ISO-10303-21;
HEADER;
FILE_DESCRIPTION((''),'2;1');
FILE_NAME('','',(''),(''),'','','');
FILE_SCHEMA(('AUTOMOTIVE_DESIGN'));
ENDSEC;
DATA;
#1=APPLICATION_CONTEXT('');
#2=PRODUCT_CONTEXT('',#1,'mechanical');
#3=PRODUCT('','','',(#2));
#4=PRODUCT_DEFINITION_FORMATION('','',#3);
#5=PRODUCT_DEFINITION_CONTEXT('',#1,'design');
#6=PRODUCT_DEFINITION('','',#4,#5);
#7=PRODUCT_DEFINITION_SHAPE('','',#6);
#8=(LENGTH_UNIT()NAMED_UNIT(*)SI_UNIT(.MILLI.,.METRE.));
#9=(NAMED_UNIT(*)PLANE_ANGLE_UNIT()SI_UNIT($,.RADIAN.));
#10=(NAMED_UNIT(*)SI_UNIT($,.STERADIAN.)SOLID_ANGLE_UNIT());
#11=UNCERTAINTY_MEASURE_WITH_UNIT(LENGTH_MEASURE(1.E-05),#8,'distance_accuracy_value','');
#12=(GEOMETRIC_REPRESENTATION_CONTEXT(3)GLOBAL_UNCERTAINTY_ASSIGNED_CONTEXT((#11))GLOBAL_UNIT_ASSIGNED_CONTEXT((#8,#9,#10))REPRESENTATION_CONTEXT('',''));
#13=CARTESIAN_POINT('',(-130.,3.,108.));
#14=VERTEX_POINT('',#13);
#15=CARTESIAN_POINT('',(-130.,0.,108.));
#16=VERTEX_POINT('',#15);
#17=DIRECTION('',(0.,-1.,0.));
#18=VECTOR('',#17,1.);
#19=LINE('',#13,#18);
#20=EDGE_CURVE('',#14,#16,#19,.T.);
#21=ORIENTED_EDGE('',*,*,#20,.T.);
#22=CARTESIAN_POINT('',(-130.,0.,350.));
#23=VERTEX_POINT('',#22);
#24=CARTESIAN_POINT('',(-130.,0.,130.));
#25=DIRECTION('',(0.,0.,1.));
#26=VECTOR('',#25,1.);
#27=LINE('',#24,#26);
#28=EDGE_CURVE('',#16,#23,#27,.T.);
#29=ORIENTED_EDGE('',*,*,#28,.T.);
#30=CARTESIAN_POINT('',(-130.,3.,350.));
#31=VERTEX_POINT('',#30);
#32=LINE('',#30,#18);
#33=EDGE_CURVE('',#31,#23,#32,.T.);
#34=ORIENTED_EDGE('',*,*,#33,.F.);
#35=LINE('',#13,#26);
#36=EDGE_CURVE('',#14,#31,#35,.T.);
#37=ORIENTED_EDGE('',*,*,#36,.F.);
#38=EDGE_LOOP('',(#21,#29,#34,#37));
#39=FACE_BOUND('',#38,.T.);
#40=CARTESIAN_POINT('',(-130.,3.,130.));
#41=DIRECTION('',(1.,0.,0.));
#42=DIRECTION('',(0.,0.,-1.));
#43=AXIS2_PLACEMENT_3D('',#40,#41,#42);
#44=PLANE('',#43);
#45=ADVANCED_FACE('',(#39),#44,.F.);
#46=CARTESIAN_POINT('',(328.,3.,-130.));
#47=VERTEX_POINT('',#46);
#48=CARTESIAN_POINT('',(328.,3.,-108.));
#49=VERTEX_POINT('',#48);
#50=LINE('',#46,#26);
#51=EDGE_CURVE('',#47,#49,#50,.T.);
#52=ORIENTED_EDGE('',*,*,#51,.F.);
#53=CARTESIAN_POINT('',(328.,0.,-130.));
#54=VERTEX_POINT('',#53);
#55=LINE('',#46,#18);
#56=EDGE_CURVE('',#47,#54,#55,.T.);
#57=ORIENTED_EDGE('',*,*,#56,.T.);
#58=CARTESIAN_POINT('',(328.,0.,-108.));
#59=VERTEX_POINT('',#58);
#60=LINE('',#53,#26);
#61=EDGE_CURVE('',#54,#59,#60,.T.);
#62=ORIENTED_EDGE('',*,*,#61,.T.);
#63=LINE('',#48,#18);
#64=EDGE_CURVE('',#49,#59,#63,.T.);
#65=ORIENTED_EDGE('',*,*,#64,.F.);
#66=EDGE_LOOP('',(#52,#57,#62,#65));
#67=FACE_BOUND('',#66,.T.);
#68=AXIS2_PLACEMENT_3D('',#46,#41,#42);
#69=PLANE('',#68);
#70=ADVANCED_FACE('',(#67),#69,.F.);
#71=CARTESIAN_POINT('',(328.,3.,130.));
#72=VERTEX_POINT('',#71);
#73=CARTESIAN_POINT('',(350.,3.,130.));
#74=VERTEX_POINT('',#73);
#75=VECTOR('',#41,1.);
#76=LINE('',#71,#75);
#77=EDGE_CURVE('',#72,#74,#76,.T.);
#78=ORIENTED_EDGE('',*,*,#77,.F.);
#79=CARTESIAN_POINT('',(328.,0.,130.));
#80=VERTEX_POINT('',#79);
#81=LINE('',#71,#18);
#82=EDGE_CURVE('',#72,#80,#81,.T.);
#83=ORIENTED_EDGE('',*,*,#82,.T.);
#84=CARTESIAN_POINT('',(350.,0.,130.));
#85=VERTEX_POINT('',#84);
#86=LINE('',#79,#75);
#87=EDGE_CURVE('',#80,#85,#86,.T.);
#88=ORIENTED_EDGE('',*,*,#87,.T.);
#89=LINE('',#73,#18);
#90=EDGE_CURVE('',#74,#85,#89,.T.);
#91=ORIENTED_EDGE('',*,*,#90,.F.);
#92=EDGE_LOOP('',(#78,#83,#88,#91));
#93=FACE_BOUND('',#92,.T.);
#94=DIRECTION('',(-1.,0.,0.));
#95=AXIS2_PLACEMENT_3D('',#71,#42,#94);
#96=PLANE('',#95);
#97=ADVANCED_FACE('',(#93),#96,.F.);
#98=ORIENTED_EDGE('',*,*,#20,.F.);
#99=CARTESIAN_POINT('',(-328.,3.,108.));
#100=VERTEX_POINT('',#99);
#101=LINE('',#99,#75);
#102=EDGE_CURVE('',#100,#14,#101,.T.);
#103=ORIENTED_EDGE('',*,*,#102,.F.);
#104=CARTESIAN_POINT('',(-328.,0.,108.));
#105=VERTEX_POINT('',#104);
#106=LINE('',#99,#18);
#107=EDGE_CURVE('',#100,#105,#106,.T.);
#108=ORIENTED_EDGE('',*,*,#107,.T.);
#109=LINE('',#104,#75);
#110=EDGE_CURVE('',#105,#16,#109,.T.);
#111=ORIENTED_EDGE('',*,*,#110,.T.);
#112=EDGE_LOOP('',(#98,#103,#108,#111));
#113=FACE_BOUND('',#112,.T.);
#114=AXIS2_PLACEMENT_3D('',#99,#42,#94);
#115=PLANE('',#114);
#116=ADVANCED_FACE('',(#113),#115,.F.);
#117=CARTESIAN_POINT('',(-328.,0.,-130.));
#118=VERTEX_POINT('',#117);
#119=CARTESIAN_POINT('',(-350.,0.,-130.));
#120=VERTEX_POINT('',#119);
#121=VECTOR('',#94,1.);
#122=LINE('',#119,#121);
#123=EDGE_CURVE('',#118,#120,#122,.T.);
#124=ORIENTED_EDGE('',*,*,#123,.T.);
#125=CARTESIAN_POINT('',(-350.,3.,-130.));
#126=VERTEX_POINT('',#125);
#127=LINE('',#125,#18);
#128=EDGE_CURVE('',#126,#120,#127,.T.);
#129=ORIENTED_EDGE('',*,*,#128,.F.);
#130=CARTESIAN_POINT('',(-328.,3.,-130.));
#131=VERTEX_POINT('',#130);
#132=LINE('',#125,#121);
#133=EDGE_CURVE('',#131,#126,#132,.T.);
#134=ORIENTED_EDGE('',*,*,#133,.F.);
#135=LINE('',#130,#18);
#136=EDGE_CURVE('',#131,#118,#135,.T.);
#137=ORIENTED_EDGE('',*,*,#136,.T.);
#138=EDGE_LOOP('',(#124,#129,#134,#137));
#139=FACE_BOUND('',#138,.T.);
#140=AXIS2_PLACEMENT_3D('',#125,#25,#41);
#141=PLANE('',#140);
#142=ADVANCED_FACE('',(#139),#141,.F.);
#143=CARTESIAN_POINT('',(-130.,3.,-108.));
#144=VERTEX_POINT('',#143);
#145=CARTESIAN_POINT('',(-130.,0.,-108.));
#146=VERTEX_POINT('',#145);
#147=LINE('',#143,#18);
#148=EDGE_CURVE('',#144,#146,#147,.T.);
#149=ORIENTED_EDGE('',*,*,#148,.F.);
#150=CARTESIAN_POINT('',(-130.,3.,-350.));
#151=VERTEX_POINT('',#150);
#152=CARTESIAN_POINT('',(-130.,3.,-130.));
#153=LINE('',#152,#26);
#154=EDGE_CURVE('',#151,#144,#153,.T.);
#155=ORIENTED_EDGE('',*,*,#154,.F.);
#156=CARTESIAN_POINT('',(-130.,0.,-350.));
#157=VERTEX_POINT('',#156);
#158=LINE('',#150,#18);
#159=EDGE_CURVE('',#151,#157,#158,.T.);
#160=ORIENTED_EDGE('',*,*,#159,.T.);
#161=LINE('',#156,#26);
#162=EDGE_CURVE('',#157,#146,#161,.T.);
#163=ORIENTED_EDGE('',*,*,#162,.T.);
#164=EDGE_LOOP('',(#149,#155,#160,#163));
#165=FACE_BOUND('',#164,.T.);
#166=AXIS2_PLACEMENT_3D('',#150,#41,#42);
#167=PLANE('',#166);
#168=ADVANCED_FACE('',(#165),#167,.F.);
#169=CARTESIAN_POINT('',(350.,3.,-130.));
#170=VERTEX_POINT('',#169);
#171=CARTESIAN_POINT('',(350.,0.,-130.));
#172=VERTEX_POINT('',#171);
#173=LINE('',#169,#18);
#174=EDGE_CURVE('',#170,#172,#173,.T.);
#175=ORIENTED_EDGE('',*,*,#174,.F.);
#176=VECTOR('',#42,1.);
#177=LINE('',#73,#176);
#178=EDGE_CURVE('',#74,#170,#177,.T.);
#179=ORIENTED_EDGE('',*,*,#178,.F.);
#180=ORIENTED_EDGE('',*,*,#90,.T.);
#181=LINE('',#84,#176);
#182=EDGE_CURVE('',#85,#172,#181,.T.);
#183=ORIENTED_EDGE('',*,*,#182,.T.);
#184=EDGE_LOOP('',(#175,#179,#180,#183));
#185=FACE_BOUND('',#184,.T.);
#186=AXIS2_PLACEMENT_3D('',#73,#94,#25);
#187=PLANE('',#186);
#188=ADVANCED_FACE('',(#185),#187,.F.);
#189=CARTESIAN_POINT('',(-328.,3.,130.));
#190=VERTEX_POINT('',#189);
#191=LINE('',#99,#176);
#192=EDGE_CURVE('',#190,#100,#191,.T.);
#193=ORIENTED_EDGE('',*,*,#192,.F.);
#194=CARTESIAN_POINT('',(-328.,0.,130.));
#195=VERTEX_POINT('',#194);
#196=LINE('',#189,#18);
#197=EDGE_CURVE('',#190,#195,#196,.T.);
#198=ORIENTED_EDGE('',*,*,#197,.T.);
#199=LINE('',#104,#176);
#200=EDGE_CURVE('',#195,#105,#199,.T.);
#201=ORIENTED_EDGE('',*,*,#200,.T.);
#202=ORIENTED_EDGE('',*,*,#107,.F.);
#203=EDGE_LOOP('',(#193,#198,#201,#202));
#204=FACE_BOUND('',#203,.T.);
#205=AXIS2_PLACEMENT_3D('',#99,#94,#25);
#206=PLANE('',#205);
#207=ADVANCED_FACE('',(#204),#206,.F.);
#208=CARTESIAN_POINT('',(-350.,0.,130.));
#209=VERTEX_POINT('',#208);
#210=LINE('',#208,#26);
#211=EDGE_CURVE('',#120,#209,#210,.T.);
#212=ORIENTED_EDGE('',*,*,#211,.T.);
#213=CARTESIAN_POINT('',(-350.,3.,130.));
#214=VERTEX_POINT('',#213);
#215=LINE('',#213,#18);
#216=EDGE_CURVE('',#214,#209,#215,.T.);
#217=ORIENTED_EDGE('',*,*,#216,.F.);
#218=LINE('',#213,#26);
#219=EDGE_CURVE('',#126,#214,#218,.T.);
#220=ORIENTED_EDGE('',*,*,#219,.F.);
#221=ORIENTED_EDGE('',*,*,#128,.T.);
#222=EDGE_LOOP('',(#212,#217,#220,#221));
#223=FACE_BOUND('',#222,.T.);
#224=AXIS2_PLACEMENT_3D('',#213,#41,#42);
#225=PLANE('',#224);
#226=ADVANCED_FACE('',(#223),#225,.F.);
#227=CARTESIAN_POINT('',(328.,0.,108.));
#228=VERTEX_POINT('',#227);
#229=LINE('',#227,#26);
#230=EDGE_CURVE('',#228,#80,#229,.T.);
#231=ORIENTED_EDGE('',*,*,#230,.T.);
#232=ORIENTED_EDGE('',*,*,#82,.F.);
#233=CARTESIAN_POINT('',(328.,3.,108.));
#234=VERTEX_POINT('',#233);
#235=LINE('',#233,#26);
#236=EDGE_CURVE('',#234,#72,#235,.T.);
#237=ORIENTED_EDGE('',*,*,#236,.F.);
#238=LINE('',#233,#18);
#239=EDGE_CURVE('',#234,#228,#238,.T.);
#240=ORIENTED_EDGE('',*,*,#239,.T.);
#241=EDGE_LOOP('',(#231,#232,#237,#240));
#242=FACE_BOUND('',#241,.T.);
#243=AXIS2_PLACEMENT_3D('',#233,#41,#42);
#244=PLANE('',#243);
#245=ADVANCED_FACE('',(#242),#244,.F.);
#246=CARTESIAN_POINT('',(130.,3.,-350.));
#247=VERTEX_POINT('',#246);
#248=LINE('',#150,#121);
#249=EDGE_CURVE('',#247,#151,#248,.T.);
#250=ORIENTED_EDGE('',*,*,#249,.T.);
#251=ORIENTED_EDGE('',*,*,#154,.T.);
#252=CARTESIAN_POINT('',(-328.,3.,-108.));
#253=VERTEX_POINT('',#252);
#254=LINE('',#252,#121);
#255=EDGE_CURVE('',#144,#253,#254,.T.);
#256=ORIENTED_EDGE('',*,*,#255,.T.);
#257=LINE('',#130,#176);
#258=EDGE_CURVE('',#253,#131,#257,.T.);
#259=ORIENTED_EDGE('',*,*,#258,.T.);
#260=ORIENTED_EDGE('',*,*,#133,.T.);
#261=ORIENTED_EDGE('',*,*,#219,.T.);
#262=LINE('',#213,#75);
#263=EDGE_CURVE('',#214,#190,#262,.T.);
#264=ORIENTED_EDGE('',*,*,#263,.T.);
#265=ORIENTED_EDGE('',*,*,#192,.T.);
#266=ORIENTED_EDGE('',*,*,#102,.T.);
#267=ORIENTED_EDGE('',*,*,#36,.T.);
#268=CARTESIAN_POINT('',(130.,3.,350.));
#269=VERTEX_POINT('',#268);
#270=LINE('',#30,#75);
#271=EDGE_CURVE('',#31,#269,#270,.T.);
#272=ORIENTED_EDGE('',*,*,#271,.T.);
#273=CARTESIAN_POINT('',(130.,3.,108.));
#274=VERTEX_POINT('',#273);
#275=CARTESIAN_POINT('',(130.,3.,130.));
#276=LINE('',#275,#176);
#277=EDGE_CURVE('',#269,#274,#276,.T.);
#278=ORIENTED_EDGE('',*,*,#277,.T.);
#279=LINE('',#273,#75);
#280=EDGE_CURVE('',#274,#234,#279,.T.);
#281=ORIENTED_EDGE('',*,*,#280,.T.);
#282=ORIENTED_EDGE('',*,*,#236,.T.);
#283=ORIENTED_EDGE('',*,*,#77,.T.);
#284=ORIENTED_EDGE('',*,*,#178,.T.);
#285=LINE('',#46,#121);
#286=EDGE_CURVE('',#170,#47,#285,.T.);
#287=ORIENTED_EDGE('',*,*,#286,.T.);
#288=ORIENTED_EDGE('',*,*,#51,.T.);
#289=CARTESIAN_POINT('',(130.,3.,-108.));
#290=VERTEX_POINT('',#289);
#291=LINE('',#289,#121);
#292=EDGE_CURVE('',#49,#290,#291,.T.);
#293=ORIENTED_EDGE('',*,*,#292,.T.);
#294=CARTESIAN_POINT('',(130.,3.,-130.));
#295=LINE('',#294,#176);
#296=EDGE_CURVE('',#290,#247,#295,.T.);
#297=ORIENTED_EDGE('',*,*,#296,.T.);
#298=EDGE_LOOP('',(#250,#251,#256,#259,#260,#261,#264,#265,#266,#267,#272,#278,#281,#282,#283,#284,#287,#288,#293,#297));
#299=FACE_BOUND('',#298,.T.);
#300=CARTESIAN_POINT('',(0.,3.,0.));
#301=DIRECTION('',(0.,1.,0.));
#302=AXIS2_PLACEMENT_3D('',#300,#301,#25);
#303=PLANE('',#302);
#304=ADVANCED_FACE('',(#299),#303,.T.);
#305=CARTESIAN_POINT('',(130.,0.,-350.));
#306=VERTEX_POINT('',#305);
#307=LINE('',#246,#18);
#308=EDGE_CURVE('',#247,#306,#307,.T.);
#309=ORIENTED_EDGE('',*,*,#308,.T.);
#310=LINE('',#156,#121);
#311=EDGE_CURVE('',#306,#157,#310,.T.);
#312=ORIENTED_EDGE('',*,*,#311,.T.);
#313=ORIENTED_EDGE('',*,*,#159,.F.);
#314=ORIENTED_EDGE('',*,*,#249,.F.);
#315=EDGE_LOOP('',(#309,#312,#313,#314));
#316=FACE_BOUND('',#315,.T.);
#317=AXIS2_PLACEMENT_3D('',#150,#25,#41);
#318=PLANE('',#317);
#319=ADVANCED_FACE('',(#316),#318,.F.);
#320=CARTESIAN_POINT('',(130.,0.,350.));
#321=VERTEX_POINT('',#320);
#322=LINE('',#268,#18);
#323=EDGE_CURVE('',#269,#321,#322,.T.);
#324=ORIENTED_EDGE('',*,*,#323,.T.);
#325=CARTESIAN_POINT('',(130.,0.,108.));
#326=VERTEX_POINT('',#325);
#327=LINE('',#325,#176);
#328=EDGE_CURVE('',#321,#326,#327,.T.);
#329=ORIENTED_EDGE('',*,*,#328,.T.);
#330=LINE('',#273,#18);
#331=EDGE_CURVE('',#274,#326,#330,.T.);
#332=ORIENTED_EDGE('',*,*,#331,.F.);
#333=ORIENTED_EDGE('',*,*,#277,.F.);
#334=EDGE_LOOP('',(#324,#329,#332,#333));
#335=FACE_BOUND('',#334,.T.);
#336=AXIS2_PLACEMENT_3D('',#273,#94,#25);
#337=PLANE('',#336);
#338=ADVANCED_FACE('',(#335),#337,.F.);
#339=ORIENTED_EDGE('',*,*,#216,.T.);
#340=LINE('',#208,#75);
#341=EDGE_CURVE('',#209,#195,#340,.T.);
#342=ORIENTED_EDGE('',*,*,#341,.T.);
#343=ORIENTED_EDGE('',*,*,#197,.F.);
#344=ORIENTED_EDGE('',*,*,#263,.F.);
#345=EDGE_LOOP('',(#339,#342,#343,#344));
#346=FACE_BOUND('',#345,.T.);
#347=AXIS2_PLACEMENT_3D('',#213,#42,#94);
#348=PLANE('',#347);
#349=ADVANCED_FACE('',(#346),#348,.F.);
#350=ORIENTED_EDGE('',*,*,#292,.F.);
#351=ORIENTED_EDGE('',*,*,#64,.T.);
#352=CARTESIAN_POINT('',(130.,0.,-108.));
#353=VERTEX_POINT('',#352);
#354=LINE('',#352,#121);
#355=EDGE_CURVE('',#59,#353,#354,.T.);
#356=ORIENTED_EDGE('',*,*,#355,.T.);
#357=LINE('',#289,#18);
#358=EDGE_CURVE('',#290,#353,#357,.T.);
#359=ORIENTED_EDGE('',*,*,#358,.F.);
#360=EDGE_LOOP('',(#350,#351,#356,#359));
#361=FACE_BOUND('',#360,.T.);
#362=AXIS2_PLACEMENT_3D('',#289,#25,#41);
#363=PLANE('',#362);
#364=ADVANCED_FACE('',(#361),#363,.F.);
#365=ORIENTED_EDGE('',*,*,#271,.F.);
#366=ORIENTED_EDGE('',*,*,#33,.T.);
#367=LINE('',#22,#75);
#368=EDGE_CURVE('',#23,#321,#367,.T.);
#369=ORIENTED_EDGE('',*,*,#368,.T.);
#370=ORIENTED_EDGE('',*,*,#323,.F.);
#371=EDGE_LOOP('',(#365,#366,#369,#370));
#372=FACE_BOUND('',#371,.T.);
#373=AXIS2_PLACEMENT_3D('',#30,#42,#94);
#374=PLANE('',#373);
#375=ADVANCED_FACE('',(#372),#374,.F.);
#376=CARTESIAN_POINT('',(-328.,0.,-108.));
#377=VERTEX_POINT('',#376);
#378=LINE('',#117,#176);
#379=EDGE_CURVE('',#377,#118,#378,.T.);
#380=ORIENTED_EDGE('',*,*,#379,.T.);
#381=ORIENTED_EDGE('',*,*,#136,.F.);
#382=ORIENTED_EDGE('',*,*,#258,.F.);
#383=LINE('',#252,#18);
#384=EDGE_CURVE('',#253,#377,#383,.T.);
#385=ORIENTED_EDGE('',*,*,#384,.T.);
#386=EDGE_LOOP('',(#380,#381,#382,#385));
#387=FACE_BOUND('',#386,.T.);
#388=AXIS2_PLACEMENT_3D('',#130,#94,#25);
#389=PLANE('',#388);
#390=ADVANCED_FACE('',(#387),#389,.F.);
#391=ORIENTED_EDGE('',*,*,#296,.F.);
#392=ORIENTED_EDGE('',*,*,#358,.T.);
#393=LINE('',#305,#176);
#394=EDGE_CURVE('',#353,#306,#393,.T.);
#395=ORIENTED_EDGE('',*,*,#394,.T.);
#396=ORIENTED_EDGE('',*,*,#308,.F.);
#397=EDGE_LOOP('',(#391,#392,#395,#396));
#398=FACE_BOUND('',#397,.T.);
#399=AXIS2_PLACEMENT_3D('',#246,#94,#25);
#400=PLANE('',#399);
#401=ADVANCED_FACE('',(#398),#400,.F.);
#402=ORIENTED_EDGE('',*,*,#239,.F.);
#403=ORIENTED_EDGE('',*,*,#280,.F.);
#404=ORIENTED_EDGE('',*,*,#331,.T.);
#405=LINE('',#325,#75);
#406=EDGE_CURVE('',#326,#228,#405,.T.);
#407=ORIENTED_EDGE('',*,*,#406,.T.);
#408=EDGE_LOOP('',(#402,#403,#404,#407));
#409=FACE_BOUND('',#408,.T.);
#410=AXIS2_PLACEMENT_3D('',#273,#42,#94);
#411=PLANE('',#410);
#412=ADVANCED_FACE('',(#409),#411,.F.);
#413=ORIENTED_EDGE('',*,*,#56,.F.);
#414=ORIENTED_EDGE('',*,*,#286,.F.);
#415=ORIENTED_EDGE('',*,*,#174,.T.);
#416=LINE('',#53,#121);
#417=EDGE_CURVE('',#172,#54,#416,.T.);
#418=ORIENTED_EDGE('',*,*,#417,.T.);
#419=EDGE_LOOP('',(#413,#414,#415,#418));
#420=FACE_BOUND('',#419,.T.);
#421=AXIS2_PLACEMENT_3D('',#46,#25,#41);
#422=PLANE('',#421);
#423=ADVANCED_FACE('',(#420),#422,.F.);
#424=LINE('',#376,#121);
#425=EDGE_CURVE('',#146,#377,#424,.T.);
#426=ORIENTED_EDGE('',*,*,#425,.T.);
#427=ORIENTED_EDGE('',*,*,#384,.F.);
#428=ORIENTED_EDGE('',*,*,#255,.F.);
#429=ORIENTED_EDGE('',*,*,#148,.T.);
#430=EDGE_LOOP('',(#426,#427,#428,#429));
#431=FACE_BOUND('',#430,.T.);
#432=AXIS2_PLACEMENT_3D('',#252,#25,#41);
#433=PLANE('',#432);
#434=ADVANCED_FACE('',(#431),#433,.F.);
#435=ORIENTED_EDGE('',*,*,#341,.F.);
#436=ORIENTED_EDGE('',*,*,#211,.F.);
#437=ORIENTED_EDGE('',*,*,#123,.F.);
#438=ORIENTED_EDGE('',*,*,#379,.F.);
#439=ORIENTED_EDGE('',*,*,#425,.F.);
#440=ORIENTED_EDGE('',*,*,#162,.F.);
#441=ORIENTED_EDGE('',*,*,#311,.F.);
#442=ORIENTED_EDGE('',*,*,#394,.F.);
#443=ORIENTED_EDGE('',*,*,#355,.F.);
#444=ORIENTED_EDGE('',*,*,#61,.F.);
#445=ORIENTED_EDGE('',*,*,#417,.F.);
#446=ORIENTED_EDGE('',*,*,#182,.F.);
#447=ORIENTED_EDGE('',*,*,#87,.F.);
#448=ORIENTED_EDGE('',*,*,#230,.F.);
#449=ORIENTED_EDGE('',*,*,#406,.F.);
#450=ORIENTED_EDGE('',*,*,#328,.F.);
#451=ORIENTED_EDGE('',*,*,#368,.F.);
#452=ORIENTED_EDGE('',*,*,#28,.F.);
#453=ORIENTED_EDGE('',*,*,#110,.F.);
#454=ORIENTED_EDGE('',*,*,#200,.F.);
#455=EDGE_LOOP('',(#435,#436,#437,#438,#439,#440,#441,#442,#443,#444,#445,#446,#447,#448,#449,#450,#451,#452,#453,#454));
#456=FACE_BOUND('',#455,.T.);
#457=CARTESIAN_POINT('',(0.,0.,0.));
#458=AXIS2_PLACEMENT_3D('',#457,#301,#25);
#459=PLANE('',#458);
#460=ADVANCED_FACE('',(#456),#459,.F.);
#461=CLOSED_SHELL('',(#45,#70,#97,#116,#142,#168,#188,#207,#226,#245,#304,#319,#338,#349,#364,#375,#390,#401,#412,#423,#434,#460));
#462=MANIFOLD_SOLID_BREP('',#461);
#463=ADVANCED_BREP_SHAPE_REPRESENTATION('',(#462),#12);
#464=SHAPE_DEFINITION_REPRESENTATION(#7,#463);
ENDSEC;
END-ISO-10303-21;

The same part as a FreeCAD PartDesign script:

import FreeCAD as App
import Part
import Sketcher
Q = App.Units.Quantity


def add_polygon(sketch, points):
    """Adds a closed chain of lines whose ends are joined by coincident constraints."""
    first, n = sketch.GeometryCount, len(points)
    for a, b in zip(points, points[1:] + points[:1]):
        sketch.addGeometry(Part.LineSegment(App.Vector(*a, 0), App.Vector(*b, 0)), False)
    for i in range(n):
        sketch.addConstraint(Sketcher.Constraint("Coincident", first + i, 2, first + (i + 1) % n, 1))

doc = App.newDocument("Part")
params = doc.addObject("Spreadsheet::Sheet", "Params")
for row, (alias, value) in enumerate([
    ("sketch1_width", "22 mm"),
    ("sketch1_width2", "198 mm"),
    ("sketch1_width3", "260 mm"),
    ("sketch1_height", "242 mm"),
    ("pad1_length", "3 mm"),
], start=1):
    params.set(f"A{row}", alias)
    params.set(f"B{row}", "=" + value)
    params.setAlias(f"B{row}", alias)

body = doc.addObject("PartDesign::Body", "Body")

sketch1 = body.newObject("Sketcher::SketchObject", "Sketch")
sketch1.AttachmentSupport = (doc.getObject("XZ_Plane"), [""])
sketch1.MapMode = "FlatFace"
add_polygon(sketch1, [(-350, 130), (-328, 130), (-328, 108), (-130, 108), (-130, 350), (130, 350), (130, 108), (328, 108), (328, 130), (350, 130), (350, -130), (328, -130), (328, -108), (130, -108), (130, -350), (-130, -350), (-130, -108), (-328, -108), (-328, -130), (-350, -130)])
sketch1.addConstraint([
    Sketcher.Constraint("Horizontal", 0),
    Sketcher.Constraint("Vertical", 1),
    Sketcher.Constraint("Horizontal", 2),
    Sketcher.Constraint("Vertical", 3),
    Sketcher.Constraint("Horizontal", 4),
    Sketcher.Constraint("Vertical", 5),
    Sketcher.Constraint("Horizontal", 6),
    Sketcher.Constraint("Vertical", 7),
    Sketcher.Constraint("Horizontal", 8),
    Sketcher.Constraint("Vertical", 9),
    Sketcher.Constraint("Horizontal", 10),
    Sketcher.Constraint("Vertical", 11),
    Sketcher.Constraint("Horizontal", 12),
    Sketcher.Constraint("Vertical", 13),
    Sketcher.Constraint("Horizontal", 14),
    Sketcher.Constraint("Vertical", 15),
    Sketcher.Constraint("Horizontal", 16),
    Sketcher.Constraint("Vertical", 17),
    Sketcher.Constraint("Horizontal", 18),
    Sketcher.Constraint("Vertical", 19),
    Sketcher.Constraint("Symmetric", 0, 2, 10, 2, -1, 1),
    Sketcher.Constraint("Symmetric", 2, 2, 12, 2, -1, 1),
    Sketcher.Constraint("Symmetric", 4, 2, 14, 2, -1, 1),
    Sketcher.Constraint("Symmetric", 6, 2, 16, 2, -1, 1),
    Sketcher.Constraint("Symmetric", 8, 2, 18, 2, -1, 1),
    Sketcher.Constraint("Symmetric", 2, 2, 5, 2, -2),
    Sketcher.Constraint("Symmetric", 0, 2, 7, 2, -2),
    Sketcher.Constraint("Equal", 18, 1),
    Sketcher.Constraint("Equal", 14, 9),
    Sketcher.Constraint("DistanceX", 0, 1, 0, 2, Q("22 mm")),
    Sketcher.Constraint("DistanceX", 2, 1, 2, 2, Q("198 mm")),
    Sketcher.Constraint("DistanceX", 4, 1, 4, 2, Q("260 mm")),
    Sketcher.Constraint("DistanceY", 3, 1, 3, 2, Q("242 mm")),
])
sketch1.setExpression("Constraints[49]", "Params.sketch1_width")
sketch1.setExpression("Constraints[50]", "Params.sketch1_width2")
sketch1.setExpression("Constraints[51]", "Params.sketch1_width3")
sketch1.setExpression("Constraints[52]", "Params.sketch1_height")
pad1 = body.newObject("PartDesign::Pad", "Pad")
pad1.Profile = sketch1
pad1.setExpression("Length", "Params.pad1_length")
pad1.Reversed = True

doc.recompute()
